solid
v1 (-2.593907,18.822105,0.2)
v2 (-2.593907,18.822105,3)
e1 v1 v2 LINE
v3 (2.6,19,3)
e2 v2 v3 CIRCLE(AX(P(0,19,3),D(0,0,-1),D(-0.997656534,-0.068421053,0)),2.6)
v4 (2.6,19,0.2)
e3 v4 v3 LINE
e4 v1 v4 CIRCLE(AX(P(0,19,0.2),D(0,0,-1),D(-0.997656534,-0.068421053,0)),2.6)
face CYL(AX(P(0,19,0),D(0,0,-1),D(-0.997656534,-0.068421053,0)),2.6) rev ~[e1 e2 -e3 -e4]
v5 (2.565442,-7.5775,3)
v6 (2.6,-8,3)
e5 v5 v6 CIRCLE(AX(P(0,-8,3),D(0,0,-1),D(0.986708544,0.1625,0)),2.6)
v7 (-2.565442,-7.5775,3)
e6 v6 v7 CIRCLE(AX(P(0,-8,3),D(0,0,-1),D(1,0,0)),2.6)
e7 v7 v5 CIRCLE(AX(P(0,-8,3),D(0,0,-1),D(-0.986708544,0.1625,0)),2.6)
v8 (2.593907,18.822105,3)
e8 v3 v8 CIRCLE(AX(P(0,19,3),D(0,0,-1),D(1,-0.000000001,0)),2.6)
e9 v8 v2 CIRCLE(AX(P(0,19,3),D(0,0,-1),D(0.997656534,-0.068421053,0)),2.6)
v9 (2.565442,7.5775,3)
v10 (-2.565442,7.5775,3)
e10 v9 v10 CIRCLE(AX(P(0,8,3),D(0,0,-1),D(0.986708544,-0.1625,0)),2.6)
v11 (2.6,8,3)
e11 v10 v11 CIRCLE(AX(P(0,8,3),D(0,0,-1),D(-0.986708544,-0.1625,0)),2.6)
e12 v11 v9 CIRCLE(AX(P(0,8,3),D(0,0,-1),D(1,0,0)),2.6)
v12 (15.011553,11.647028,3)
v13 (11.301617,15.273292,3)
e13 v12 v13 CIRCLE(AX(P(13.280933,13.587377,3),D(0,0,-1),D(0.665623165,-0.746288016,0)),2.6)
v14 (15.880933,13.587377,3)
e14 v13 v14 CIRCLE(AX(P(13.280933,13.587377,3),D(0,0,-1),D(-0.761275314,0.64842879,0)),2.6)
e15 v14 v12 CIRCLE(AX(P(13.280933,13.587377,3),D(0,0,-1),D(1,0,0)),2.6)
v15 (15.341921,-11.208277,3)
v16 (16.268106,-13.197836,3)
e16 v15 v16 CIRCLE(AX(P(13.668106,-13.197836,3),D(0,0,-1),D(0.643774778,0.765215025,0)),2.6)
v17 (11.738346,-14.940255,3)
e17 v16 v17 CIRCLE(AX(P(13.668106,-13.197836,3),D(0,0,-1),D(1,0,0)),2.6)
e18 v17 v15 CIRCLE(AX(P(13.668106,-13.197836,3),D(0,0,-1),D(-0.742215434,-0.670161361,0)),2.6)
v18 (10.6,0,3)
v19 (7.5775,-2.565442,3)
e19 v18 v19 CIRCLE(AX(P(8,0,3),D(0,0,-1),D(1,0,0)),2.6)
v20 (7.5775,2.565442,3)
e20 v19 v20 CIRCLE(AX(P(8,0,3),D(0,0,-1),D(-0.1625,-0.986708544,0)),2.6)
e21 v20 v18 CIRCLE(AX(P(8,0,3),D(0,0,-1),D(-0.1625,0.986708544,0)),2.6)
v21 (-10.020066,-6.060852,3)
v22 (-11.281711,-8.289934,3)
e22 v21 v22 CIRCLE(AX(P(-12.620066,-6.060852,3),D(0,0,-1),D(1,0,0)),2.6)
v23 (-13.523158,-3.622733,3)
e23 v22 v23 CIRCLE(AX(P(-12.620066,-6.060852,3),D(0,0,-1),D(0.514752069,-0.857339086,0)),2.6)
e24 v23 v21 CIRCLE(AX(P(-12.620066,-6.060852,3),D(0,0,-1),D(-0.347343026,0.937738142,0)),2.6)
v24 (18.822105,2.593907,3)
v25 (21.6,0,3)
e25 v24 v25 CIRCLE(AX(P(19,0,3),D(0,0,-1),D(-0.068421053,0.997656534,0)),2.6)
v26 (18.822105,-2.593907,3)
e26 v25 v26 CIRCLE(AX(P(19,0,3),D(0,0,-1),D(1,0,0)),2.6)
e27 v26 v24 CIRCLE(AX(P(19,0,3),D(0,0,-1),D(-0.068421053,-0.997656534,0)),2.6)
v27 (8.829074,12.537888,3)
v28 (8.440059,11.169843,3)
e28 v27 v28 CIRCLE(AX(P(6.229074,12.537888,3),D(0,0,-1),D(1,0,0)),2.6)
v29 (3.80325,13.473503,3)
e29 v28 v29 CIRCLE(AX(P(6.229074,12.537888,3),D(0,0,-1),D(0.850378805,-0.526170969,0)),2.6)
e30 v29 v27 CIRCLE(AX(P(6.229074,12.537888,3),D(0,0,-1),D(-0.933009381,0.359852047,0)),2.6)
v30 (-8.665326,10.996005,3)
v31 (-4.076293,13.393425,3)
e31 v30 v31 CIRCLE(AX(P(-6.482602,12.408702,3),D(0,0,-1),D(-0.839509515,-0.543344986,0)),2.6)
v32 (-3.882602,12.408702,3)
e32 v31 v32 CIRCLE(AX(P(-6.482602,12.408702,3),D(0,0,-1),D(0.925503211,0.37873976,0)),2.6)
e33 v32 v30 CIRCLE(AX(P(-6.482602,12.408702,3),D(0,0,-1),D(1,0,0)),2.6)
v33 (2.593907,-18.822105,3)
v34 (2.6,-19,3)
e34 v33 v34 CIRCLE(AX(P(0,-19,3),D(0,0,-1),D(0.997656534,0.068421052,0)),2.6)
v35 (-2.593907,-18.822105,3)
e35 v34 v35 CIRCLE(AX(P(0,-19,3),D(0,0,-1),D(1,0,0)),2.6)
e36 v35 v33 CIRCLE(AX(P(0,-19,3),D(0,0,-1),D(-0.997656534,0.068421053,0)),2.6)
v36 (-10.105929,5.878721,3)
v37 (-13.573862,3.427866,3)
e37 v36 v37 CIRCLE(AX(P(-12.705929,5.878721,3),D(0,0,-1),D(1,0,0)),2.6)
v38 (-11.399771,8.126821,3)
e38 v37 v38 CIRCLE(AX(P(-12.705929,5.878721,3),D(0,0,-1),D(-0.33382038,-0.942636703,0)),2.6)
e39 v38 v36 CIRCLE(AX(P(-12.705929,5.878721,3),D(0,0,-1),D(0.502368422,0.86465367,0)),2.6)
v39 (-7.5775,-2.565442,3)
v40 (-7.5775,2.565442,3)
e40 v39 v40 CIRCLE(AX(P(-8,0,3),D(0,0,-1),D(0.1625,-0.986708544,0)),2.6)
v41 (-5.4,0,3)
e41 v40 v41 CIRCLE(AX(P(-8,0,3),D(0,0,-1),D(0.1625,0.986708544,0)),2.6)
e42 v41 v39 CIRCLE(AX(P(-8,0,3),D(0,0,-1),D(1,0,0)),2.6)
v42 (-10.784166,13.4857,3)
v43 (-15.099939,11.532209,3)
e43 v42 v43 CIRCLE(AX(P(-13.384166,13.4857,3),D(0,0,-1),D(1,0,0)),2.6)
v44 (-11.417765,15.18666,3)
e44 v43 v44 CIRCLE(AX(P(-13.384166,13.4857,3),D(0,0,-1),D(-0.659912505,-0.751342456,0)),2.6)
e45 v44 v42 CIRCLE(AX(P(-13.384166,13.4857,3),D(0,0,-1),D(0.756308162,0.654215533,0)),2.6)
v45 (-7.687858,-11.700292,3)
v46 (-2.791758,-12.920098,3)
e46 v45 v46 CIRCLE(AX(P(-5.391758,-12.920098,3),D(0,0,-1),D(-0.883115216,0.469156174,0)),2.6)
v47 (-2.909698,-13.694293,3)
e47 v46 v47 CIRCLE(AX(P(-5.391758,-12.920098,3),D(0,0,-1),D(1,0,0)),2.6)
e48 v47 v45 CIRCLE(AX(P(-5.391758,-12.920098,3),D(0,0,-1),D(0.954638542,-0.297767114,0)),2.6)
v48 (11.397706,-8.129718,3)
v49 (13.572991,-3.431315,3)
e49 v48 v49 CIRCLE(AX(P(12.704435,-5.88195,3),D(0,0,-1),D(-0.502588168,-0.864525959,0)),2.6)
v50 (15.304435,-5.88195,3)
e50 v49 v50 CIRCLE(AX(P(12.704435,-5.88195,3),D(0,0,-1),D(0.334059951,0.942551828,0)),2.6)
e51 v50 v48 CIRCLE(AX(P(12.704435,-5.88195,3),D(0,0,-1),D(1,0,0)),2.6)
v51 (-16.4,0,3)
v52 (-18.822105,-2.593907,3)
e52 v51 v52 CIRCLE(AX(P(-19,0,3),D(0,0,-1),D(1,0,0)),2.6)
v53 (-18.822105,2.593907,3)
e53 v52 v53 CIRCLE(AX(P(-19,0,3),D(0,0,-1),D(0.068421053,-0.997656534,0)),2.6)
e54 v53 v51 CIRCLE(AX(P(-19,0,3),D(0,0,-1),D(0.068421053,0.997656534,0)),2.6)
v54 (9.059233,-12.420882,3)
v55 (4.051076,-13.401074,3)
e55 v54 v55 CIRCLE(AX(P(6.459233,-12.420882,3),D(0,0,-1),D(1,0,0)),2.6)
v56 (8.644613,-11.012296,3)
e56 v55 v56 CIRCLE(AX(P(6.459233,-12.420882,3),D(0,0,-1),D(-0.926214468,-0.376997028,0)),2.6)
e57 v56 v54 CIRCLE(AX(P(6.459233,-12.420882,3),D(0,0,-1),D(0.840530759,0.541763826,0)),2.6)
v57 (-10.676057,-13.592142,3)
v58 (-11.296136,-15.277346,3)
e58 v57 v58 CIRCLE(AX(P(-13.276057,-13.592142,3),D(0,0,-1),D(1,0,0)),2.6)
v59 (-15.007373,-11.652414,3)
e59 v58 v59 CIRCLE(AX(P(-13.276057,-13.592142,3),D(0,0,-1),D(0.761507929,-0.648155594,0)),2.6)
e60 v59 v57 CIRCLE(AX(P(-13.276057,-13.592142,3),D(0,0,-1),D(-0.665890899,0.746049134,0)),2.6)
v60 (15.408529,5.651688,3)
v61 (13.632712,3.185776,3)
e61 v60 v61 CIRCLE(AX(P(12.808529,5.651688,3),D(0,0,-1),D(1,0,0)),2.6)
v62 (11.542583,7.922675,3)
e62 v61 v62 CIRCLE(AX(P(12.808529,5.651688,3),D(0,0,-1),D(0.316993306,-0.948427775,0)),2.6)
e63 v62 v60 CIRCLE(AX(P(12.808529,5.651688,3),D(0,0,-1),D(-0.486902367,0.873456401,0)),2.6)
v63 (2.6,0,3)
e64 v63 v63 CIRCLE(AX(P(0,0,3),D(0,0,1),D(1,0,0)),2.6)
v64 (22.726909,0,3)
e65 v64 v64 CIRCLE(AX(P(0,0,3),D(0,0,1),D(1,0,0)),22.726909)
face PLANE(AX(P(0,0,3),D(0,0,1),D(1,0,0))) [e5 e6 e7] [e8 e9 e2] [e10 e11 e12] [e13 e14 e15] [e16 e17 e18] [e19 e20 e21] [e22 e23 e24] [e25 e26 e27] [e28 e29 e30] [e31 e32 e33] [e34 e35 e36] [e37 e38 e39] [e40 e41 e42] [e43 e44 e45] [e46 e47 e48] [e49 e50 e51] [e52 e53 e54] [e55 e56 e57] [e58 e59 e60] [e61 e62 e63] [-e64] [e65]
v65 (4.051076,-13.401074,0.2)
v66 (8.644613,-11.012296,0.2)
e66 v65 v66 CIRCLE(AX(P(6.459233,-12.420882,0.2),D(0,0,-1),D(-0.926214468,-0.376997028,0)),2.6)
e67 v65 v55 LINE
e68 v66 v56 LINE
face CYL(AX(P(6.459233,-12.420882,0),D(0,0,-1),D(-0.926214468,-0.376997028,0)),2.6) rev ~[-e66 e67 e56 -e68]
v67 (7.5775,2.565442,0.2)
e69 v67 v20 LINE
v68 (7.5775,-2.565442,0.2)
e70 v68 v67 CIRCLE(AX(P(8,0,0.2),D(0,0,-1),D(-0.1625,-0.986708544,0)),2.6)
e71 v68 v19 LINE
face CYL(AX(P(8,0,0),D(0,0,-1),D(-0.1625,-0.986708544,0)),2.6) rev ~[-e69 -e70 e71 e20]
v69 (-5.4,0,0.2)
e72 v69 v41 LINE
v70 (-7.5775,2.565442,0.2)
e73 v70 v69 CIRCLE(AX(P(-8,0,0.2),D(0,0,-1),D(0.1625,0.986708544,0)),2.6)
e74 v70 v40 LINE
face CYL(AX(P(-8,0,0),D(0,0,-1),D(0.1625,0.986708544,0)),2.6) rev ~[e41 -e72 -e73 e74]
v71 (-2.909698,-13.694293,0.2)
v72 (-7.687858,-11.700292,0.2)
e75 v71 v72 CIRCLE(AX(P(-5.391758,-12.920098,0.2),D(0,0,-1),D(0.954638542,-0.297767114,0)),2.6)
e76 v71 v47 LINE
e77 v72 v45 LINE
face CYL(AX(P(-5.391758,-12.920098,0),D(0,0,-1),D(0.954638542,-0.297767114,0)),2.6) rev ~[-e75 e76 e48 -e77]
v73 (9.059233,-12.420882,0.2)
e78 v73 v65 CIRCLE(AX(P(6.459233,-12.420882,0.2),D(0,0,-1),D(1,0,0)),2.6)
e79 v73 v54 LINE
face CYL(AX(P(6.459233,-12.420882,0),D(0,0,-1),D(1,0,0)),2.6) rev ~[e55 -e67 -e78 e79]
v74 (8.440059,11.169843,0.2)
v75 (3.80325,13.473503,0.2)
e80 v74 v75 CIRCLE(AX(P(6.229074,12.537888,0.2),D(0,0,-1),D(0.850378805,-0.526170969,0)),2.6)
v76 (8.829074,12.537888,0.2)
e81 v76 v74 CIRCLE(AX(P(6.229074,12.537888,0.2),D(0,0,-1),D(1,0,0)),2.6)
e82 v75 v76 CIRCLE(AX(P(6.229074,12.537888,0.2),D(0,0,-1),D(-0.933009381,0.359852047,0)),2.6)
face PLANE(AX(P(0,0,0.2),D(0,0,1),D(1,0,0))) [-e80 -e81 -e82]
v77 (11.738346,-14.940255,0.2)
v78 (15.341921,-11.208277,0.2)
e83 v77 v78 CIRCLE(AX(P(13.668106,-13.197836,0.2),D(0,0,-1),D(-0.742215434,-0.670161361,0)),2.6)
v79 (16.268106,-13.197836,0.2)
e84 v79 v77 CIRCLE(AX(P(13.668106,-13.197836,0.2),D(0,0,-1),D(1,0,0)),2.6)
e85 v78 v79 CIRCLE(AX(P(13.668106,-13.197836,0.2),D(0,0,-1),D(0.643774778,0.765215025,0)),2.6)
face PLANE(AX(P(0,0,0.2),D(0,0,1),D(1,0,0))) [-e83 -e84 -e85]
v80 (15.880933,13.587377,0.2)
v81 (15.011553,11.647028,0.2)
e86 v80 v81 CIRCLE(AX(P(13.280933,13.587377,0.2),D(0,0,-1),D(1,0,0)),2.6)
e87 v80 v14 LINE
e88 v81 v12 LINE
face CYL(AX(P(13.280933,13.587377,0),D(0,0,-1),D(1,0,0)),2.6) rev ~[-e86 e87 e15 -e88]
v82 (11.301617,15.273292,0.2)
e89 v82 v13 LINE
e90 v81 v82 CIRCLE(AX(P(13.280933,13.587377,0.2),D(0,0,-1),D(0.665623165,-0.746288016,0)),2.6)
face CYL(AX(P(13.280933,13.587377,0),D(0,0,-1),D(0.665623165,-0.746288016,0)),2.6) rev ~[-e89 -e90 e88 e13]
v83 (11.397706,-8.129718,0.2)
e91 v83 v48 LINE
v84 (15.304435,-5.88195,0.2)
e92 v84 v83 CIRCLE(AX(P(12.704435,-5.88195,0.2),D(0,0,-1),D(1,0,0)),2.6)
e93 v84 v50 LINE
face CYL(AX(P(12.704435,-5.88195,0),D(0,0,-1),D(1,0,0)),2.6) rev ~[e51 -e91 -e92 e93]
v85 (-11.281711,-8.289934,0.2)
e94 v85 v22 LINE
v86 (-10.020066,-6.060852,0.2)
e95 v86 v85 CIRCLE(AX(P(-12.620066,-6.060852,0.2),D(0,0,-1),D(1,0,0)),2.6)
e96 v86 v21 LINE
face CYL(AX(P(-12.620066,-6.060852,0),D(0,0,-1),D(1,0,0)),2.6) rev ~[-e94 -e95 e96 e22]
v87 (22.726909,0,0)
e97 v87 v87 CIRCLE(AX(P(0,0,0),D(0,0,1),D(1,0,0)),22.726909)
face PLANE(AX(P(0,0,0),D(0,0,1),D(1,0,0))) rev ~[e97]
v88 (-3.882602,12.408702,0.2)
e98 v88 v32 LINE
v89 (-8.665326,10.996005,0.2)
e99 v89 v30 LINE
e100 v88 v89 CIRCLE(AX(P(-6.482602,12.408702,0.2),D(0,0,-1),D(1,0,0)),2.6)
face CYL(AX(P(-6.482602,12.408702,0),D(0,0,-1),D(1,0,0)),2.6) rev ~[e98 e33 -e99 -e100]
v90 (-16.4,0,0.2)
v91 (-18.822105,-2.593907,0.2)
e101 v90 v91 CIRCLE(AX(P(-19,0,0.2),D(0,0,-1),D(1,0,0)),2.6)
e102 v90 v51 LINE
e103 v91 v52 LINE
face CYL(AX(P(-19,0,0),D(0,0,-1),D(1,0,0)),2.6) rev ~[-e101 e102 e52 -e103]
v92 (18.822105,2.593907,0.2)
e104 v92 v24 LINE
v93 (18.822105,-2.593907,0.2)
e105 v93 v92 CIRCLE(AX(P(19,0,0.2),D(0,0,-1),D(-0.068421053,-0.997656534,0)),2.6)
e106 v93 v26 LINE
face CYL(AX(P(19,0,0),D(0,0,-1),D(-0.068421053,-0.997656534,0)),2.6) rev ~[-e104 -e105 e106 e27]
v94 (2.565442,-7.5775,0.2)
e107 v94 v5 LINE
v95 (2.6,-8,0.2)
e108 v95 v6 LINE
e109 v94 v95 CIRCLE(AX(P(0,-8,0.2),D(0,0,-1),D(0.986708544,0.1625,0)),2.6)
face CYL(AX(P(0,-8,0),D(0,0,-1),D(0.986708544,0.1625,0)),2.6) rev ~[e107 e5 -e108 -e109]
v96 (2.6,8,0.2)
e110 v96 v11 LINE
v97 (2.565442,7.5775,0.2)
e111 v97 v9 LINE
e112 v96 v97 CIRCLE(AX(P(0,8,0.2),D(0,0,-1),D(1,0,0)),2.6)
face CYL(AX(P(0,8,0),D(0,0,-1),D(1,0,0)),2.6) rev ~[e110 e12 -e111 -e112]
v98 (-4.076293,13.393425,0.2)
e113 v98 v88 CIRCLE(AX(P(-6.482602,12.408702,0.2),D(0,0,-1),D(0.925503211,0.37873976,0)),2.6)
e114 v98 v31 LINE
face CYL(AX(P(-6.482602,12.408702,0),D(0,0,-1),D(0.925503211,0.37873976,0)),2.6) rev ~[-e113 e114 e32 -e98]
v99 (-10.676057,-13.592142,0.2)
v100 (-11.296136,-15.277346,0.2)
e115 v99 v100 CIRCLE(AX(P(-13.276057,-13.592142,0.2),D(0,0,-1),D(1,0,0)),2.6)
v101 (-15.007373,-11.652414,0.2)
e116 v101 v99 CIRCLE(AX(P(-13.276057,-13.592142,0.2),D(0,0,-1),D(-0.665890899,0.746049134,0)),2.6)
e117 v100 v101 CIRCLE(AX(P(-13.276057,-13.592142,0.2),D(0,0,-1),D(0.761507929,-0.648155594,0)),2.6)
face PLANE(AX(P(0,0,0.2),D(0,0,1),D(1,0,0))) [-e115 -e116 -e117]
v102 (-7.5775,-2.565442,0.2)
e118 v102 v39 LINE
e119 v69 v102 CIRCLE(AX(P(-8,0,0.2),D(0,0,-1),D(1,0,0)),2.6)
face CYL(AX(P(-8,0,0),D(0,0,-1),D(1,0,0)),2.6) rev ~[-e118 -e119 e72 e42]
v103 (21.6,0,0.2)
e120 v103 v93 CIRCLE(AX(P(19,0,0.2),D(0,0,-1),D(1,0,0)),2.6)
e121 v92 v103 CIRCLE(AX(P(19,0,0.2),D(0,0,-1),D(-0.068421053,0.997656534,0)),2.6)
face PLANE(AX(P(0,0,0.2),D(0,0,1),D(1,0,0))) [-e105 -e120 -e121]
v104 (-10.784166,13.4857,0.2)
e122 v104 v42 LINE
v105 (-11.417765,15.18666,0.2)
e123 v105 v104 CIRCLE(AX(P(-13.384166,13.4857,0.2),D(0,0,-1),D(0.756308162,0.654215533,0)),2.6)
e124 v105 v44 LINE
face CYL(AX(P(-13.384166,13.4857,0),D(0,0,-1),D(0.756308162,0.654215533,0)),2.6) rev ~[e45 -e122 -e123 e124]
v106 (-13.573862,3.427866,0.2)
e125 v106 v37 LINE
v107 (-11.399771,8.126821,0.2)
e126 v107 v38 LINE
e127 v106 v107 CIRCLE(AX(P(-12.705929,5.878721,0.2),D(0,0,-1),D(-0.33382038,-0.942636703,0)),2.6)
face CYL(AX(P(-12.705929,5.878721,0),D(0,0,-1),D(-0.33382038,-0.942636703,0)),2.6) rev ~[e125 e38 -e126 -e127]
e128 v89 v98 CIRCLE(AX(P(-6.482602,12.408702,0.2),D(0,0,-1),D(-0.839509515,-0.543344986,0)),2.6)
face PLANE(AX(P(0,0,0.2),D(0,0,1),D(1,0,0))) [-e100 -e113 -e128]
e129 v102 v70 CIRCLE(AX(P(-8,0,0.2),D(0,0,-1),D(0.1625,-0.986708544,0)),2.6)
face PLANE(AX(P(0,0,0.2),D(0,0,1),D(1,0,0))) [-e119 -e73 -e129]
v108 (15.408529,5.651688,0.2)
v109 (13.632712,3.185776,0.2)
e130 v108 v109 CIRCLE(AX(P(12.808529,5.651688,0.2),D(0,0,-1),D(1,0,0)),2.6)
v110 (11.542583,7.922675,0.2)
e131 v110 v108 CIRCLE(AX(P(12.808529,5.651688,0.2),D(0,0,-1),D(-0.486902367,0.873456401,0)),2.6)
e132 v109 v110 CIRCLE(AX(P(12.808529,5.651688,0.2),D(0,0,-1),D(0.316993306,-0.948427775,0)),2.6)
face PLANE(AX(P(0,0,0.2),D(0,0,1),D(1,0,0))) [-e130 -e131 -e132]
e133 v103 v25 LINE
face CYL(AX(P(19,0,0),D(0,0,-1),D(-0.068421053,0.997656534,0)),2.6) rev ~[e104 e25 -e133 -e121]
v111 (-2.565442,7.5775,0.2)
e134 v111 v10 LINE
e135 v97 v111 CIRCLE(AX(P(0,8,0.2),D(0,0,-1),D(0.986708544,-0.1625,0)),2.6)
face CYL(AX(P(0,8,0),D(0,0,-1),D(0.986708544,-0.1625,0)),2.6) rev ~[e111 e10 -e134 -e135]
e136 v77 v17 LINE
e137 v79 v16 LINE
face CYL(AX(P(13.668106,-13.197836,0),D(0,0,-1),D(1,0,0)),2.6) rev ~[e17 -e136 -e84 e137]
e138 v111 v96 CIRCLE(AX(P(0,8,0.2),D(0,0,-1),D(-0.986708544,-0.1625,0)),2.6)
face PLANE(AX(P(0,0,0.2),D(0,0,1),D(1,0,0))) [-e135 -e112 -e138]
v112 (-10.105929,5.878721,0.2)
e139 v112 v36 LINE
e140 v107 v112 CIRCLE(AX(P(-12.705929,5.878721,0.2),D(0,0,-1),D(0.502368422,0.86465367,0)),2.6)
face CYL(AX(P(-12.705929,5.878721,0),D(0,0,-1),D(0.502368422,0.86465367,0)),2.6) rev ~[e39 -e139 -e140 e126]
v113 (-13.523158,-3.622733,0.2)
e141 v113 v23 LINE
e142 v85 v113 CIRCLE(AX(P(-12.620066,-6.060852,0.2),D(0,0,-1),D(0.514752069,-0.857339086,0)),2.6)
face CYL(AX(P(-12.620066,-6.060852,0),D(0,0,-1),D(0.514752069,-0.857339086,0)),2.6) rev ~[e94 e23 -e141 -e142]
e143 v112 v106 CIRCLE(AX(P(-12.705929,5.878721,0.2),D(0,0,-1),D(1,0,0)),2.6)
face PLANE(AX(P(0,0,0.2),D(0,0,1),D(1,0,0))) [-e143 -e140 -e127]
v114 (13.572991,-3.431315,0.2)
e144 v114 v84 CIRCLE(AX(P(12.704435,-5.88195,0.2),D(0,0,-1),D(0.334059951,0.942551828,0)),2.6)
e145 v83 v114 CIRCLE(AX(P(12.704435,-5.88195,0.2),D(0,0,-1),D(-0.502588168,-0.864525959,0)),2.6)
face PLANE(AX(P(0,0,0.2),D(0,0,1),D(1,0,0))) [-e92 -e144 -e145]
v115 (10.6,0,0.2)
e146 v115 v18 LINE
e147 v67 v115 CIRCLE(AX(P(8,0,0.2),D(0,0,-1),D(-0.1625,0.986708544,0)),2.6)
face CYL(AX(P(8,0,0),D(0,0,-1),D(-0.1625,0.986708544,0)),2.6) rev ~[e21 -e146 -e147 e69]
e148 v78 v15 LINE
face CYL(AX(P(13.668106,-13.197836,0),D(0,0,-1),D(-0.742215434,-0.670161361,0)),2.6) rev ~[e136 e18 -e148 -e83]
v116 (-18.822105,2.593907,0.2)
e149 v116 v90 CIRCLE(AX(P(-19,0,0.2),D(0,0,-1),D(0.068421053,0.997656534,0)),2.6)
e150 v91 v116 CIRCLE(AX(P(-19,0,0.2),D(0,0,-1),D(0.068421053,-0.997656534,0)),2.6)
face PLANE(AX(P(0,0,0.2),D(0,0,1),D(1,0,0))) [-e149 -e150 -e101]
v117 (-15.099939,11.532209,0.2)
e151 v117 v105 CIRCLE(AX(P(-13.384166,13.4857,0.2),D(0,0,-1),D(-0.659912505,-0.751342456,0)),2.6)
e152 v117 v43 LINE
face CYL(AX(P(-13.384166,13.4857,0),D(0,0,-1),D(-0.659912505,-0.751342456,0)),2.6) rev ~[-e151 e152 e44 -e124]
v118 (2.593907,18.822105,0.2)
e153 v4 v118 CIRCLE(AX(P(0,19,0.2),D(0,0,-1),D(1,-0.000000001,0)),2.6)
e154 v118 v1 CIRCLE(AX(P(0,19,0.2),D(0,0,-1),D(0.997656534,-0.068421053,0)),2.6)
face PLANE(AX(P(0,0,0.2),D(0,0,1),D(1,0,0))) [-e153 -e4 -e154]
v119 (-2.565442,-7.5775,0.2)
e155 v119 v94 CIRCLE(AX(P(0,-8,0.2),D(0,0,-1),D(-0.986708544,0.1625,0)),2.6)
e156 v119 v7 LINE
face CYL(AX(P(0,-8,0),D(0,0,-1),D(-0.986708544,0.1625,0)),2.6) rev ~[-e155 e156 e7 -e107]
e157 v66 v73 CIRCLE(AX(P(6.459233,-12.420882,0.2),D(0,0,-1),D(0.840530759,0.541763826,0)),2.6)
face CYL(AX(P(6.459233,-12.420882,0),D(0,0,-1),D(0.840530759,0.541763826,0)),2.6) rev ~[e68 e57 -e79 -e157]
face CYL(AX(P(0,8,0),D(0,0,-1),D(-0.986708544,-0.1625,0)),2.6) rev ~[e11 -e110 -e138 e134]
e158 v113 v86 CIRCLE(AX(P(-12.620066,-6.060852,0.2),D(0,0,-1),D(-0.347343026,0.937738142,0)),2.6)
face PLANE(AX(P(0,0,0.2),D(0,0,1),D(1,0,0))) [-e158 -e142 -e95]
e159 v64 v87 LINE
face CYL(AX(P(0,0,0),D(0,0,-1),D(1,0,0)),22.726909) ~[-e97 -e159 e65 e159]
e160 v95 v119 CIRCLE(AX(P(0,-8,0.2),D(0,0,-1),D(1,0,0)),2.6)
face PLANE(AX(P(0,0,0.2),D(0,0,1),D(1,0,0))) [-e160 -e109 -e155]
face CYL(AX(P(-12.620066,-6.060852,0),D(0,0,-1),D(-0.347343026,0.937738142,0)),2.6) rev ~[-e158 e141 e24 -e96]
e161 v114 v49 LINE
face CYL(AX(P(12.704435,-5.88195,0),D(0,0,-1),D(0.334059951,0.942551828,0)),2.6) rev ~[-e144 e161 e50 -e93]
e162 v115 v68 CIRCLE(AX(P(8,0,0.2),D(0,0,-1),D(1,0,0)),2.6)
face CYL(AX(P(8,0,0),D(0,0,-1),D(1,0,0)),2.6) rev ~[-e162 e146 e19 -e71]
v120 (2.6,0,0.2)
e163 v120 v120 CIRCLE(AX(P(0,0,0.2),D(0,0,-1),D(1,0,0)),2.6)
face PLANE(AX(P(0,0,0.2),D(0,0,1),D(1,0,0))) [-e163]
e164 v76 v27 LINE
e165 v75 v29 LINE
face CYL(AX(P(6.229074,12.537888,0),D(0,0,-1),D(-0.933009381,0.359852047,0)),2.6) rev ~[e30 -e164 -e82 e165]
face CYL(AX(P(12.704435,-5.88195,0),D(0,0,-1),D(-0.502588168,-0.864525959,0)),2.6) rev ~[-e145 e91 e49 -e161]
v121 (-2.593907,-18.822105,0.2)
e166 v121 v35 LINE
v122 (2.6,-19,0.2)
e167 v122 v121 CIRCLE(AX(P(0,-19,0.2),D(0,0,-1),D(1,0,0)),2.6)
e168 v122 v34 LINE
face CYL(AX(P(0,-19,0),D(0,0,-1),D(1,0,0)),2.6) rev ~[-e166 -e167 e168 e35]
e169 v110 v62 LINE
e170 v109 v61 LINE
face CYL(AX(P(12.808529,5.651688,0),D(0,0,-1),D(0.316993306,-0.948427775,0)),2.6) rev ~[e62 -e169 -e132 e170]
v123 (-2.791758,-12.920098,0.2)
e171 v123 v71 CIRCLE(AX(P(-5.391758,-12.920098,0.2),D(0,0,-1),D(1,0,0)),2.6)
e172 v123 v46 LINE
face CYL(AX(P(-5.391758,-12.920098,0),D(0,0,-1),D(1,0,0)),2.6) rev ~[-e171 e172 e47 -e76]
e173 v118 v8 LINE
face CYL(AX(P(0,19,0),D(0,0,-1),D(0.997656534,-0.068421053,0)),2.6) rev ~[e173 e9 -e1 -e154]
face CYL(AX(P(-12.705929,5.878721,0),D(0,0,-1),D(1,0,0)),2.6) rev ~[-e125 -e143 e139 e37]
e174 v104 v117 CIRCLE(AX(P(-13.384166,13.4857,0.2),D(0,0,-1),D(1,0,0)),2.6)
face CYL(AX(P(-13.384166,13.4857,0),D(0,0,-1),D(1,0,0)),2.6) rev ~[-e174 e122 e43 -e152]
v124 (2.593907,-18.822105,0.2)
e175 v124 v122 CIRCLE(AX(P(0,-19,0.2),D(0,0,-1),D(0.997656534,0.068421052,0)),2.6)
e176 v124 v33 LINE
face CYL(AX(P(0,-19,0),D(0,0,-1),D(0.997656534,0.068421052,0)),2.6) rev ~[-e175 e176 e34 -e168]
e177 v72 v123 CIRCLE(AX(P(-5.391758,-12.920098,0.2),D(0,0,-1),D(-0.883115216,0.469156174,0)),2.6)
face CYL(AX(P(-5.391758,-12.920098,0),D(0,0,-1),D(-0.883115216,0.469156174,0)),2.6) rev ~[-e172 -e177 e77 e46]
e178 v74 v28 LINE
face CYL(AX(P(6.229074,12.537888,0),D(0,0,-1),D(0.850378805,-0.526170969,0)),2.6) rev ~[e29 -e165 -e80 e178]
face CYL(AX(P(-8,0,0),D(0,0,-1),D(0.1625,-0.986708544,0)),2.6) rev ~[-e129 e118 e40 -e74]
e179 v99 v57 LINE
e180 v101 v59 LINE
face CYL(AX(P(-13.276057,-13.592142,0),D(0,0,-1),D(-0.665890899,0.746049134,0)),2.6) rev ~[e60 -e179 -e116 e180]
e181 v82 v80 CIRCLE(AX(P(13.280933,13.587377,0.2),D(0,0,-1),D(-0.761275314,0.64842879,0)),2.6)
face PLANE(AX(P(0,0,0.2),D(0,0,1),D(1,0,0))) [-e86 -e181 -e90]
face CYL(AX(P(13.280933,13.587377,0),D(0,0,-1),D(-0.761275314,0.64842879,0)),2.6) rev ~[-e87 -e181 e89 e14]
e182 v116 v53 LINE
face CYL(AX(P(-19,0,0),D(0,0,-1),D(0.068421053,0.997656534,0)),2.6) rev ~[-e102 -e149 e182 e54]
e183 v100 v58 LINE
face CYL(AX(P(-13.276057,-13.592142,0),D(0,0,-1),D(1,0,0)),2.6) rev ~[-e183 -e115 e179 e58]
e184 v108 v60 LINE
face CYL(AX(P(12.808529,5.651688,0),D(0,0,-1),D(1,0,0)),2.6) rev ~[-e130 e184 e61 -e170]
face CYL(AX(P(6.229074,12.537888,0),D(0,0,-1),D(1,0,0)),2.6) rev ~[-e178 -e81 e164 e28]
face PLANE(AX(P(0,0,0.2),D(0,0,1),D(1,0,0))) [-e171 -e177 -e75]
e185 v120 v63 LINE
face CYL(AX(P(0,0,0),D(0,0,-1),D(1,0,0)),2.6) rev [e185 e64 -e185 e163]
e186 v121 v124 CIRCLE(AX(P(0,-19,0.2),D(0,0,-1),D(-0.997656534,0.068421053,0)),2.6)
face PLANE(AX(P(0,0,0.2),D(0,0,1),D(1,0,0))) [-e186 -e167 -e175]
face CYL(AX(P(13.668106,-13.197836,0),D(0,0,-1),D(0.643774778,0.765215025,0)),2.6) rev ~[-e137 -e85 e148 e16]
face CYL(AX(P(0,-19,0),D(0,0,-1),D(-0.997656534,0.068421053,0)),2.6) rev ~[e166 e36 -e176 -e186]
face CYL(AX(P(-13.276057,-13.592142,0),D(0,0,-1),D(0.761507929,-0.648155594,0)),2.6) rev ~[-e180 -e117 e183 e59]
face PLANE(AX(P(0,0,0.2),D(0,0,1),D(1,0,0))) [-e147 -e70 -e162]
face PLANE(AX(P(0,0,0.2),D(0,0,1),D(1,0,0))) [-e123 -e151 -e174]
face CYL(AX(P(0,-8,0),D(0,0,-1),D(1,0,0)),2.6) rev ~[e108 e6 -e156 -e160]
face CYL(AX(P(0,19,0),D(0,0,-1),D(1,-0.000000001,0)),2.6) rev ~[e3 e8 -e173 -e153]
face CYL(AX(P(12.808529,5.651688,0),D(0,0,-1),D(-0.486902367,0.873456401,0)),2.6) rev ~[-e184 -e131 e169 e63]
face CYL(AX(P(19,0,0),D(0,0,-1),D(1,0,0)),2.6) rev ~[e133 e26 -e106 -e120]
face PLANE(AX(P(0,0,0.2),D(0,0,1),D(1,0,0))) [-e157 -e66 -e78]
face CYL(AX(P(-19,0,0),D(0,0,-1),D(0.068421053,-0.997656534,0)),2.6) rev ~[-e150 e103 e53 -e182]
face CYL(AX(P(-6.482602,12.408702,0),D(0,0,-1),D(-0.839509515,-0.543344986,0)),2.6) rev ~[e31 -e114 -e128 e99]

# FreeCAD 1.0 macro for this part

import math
import FreeCAD as App
import Part
import Sketcher
Q = App.Units.Quantity

doc = App.newDocument("Part")
body = doc.addObject("PartDesign::Body", "Body")

# Sketch on XY plane
sketch1 = body.newObject("Sketcher::SketchObject", "Sketch")
sketch1.AttachmentSupport = (doc.getObject("XY_Plane"), [""])
sketch1.MapMode = "FlatFace"
sketch1.addGeometry(Part.Circle(App.Vector(0, 0, 0), App.Vector(0, 0, 1), 23), False)
sketch1.addConstraint(Sketcher.Constraint("Coincident", 0, 3, -1, 1))
sketch1.addConstraint(Sketcher.Constraint("Diameter", 0, Q("45.453818 mm")))
pad1 = body.newObject("PartDesign::Pad", "Pad")
pad1.Profile = sketch1
pad1.Length = 0.2

# Sketch on XY plane
sketch2 = body.newObject("Sketcher::SketchObject", "Sketch001")
sketch2.AttachmentSupport = (doc.getObject("XY_Plane"), [""])
sketch2.MapMode = "FlatFace"
sketch2.addGeometry(Part.Circle(App.Vector(0, 0, 0), App.Vector(0, 0, 1), 22.73), False)
sketch2.addGeometry(Part.ArcOfCircle(Part.Circle(App.Vector(-13.28, -13.59, 0), App.Vector(0, 0, 1), 2.6), math.radians(132), math.radians(320)), False)
sketch2.addGeometry(Part.ArcOfCircle(Part.Circle(App.Vector(-13.28, -13.59, 0), App.Vector(0, 0, 1), 2.6), math.radians(0), math.radians(132)), False)
sketch2.addGeometry(Part.ArcOfCircle(Part.Circle(App.Vector(-13.28, -13.59, 0), App.Vector(0, 0, 1), 2.6), math.radians(-40), math.radians(0)), False)
sketch2.addGeometry(Part.ArcOfCircle(Part.Circle(App.Vector(-5.39, -12.92, 0), App.Vector(0, 0, 1), 2.6), math.radians(152), math.radians(343)), False)
sketch2.addGeometry(Part.ArcOfCircle(Part.Circle(App.Vector(-5.39, -12.92, 0), App.Vector(0, 0, 1), 2.6), math.radians(0), math.radians(152)), False)
sketch2.addGeometry(Part.ArcOfCircle(Part.Circle(App.Vector(-5.39, -12.92, 0), App.Vector(0, 0, 1), 2.6), math.radians(-17.32), math.radians(0)), False)
sketch2.addGeometry(Part.ArcOfCircle(Part.Circle(App.Vector(-12.62, -6.06, 0), App.Vector(0, 0, 1), 2.6), math.radians(110), math.radians(301)), False)
sketch2.addGeometry(Part.ArcOfCircle(Part.Circle(App.Vector(-12.62, -6.06, 0), App.Vector(0, 0, 1), 2.6), math.radians(0), math.radians(110)), False)
sketch2.addGeometry(Part.ArcOfCircle(Part.Circle(App.Vector(-12.62, -6.06, 0), App.Vector(0, 0, 1), 2.6), math.radians(-59), math.radians(0)), False)
sketch2.addGeometry(Part.ArcOfCircle(Part.Circle(App.Vector(0, -19, 0), App.Vector(0, 0, 1), 2.6), math.radians(176), math.radians(360)), False)
sketch2.addGeometry(Part.ArcOfCircle(Part.Circle(App.Vector(0, -19, 0), App.Vector(0, 0, 1), 2.6), math.radians(4), math.radians(176)), False)
sketch2.addGeometry(Part.ArcOfCircle(Part.Circle(App.Vector(0, -19, 0), App.Vector(0, 0, 1), 2.6), math.radians(0), math.radians(3.92)), False)
sketch2.addGeometry(Part.ArcOfCircle(Part.Circle(App.Vector(6.46, -12.42, 0), App.Vector(0, 0, 1), 2.6), math.radians(-158), math.radians(0)), False)
sketch2.addGeometry(Part.ArcOfCircle(Part.Circle(App.Vector(6.46, -12.42, 0), App.Vector(0, 0, 1), 2.6), math.radians(33), math.radians(202)), False)
sketch2.addGeometry(Part.ArcOfCircle(Part.Circle(App.Vector(6.46, -12.42, 0), App.Vector(0, 0, 1), 2.6), math.radians(0), math.radians(33)), False)
sketch2.addGeometry(Part.ArcOfCircle(Part.Circle(App.Vector(13.67, -13.2, 0), App.Vector(0, 0, 1), 2.6), math.radians(-138), math.radians(0)), False)
sketch2.addGeometry(Part.ArcOfCircle(Part.Circle(App.Vector(13.67, -13.2, 0), App.Vector(0, 0, 1), 2.6), math.radians(50), math.radians(222)), False)
sketch2.addGeometry(Part.ArcOfCircle(Part.Circle(App.Vector(13.67, -13.2, 0), App.Vector(0, 0, 1), 2.6), math.radians(0), math.radians(50)), False)
sketch2.addGeometry(Part.ArcOfCircle(Part.Circle(App.Vector(0, -8, 0), App.Vector(0, 0, 1), 2.6), math.radians(171), math.radians(360)), False)
sketch2.addGeometry(Part.ArcOfCircle(Part.Circle(App.Vector(0, -8, 0), App.Vector(0, 0, 1), 2.6), math.radians(9), math.radians(171)), False)
sketch2.addGeometry(Part.ArcOfCircle(Part.Circle(App.Vector(0, -8, 0), App.Vector(0, 0, 1), 2.6), math.radians(0), math.radians(9.35)), False)
sketch2.addGeometry(Part.ArcOfCircle(Part.Circle(App.Vector(12.7, -5.88, 0), App.Vector(0, 0, 1), 2.6), math.radians(-120), math.radians(0)), False)
sketch2.addGeometry(Part.ArcOfCircle(Part.Circle(App.Vector(12.7, -5.88, 0), App.Vector(0, 0, 1), 2.6), math.radians(70), math.radians(240)), False)
sketch2.addGeometry(Part.ArcOfCircle(Part.Circle(App.Vector(12.7, -5.88, 0), App.Vector(0, 0, 1), 2.6), math.radians(0), math.radians(70)), False)
sketch2.addGeometry(Part.ArcOfCircle(Part.Circle(App.Vector(-19, 0, 0), App.Vector(0, 0, 1), 2.6), math.radians(86), math.radians(274)), False)
sketch2.addGeometry(Part.ArcOfCircle(Part.Circle(App.Vector(-19, 0, 0), App.Vector(0, 0, 1), 2.6), math.radians(0), math.radians(86)), False)
sketch2.addGeometry(Part.ArcOfCircle(Part.Circle(App.Vector(-19, 0, 0), App.Vector(0, 0, 1), 2.6), math.radians(-86), math.radians(0)), False)
sketch2.addGeometry(Part.ArcOfCircle(Part.Circle(App.Vector(-12.71, 5.88, 0), App.Vector(0, 0, 1), 2.6), math.radians(60), math.radians(250)), False)
sketch2.addGeometry(Part.ArcOfCircle(Part.Circle(App.Vector(-12.71, 5.88, 0), App.Vector(0, 0, 1), 2.6), math.radians(0), math.radians(60)), False)
sketch2.addGeometry(Part.ArcOfCircle(Part.Circle(App.Vector(-12.71, 5.88, 0), App.Vector(0, 0, 1), 2.6), math.radians(-110), math.radians(0)), False)
sketch2.addGeometry(Part.ArcOfCircle(Part.Circle(App.Vector(-8, 0, 0), App.Vector(0, 0, 1), 2.6), math.radians(81), math.radians(279)), False)
sketch2.addGeometry(Part.ArcOfCircle(Part.Circle(App.Vector(-8, 0, 0), App.Vector(0, 0, 1), 2.6), math.radians(0), math.radians(81)), False)
sketch2.addGeometry(Part.ArcOfCircle(Part.Circle(App.Vector(-8, 0, 0), App.Vector(0, 0, 1), 2.6), math.radians(-81), math.radians(0)), False)
sketch2.addGeometry(Part.ArcOfCircle(Part.Circle(App.Vector(-13.38, 13.49, 0), App.Vector(0, 0, 1), 2.6), math.radians(41), math.radians(229)), False)
sketch2.addGeometry(Part.ArcOfCircle(Part.Circle(App.Vector(-13.38, 13.49, 0), App.Vector(0, 0, 1), 2.6), math.radians(0), math.radians(41)), False)
sketch2.addGeometry(Part.ArcOfCircle(Part.Circle(App.Vector(-13.38, 13.49, 0), App.Vector(0, 0, 1), 2.6), math.radians(-131), math.radians(0)), False)
sketch2.addGeometry(Part.ArcOfCircle(Part.Circle(App.Vector(-6.48, 12.41, 0), App.Vector(0, 0, 1), 2.6), math.radians(22), math.radians(213)), False)
sketch2.addGeometry(Part.ArcOfCircle(Part.Circle(App.Vector(-6.48, 12.41, 0), App.Vector(0, 0, 1), 2.6), math.radians(0), math.radians(22)), False)
sketch2.addGeometry(Part.ArcOfCircle(Part.Circle(App.Vector(-6.48, 12.41, 0), App.Vector(0, 0, 1), 2.6), math.radians(-147), math.radians(0)), False)
sketch2.addGeometry(Part.Circle(App.Vector(0, 0, 0), App.Vector(0, 0, 1), 2.6), False)
sketch2.addGeometry(Part.ArcOfCircle(Part.Circle(App.Vector(8, 0, 0), App.Vector(0, 0, 1), 2.6), math.radians(-99), math.radians(0)), False)
sketch2.addGeometry(Part.ArcOfCircle(Part.Circle(App.Vector(8, 0, 0), App.Vector(0, 0, 1), 2.6), math.radians(99), math.radians(261)), False)
sketch2.addGeometry(Part.ArcOfCircle(Part.Circle(App.Vector(8, 0, 0), App.Vector(0, 0, 1), 2.6), math.radians(0), math.radians(99)), False)
sketch2.addGeometry(Part.ArcOfCircle(Part.Circle(App.Vector(0, 8, 0), App.Vector(0, 0, 1), 2.6), math.radians(-9.35), math.radians(0)), False)
sketch2.addGeometry(Part.ArcOfCircle(Part.Circle(App.Vector(0, 8, 0), App.Vector(0, 0, 1), 2.6), math.radians(-171), math.radians(-9)), False)
sketch2.addGeometry(Part.ArcOfCircle(Part.Circle(App.Vector(0, 8, 0), App.Vector(0, 0, 1), 2.6), math.radians(0), math.radians(189)), False)
sketch2.addGeometry(Part.ArcOfCircle(Part.Circle(App.Vector(19, 0, 0), App.Vector(0, 0, 1), 2.6), math.radians(-94), math.radians(0)), False)
sketch2.addGeometry(Part.ArcOfCircle(Part.Circle(App.Vector(19, 0, 0), App.Vector(0, 0, 1), 2.6), math.radians(94), math.radians(266)), False)
sketch2.addGeometry(Part.ArcOfCircle(Part.Circle(App.Vector(19, 0, 0), App.Vector(0, 0, 1), 2.6), math.radians(0), math.radians(94)), False)
sketch2.addGeometry(Part.ArcOfCircle(Part.Circle(App.Vector(12.81, 5.65, 0), App.Vector(0, 0, 1), 2.6), math.radians(-72), math.radians(0)), False)
sketch2.addGeometry(Part.ArcOfCircle(Part.Circle(App.Vector(12.81, 5.65, 0), App.Vector(0, 0, 1), 2.6), math.radians(119), math.radians(288)), False)
sketch2.addGeometry(Part.ArcOfCircle(Part.Circle(App.Vector(12.81, 5.65, 0), App.Vector(0, 0, 1), 2.6), math.radians(0), math.radians(119)), False)
sketch2.addGeometry(Part.ArcOfCircle(Part.Circle(App.Vector(6.23, 12.54, 0), App.Vector(0, 0, 1), 2.6), math.radians(-32), math.radians(0)), False)
sketch2.addGeometry(Part.ArcOfCircle(Part.Circle(App.Vector(6.23, 12.54, 0), App.Vector(0, 0, 1), 2.6), math.radians(159), math.radians(328)), False)
sketch2.addGeometry(Part.ArcOfCircle(Part.Circle(App.Vector(6.23, 12.54, 0), App.Vector(0, 0, 1), 2.6), math.radians(0), math.radians(159)), False)
sketch2.addGeometry(Part.ArcOfCircle(Part.Circle(App.Vector(0, 19, 0), App.Vector(0, 0, 1), 2.6), math.radians(-3.92), math.radians(0)), False)
sketch2.addGeometry(Part.ArcOfCircle(Part.Circle(App.Vector(0, 19, 0), App.Vector(0, 0, 1), 2.6), math.radians(-176), math.radians(-4)), False)
sketch2.addGeometry(Part.ArcOfCircle(Part.Circle(App.Vector(0, 19, 0), App.Vector(0, 0, 1), 2.6), math.radians(0), math.radians(184)), False)
sketch2.addGeometry(Part.ArcOfCircle(Part.Circle(App.Vector(13.28, 13.59, 0), App.Vector(0, 0, 1), 2.6), math.radians(-48), math.radians(0)), False)
sketch2.addGeometry(Part.ArcOfCircle(Part.Circle(App.Vector(13.28, 13.59, 0), App.Vector(0, 0, 1), 2.6), math.radians(140), math.radians(312)), False)
sketch2.addGeometry(Part.ArcOfCircle(Part.Circle(App.Vector(13.28, 13.59, 0), App.Vector(0, 0, 1), 2.6), math.radians(0), math.radians(140)), False)
sketch2.addConstraint(Sketcher.Constraint("Tangent", 1, 1, 2, 2))
sketch2.addConstraint(Sketcher.Constraint("Tangent", 2, 1, 3, 2))
sketch2.addConstraint(Sketcher.Constraint("Tangent", 3, 1, 1, 2))
sketch2.addConstraint(Sketcher.Constraint("Tangent", 4, 1, 5, 2))
sketch2.addConstraint(Sketcher.Constraint("Tangent", 5, 1, 6, 2))
sketch2.addConstraint(Sketcher.Constraint("Tangent", 6, 1, 4, 2))
sketch2.addConstraint(Sketcher.Constraint("Tangent", 7, 1, 8, 2))
sketch2.addConstraint(Sketcher.Constraint("Tangent", 8, 1, 9, 2))
sketch2.addConstraint(Sketcher.Constraint("Tangent", 9, 1, 7, 2))
sketch2.addConstraint(Sketcher.Constraint("Tangent", 10, 1, 11, 2))
sketch2.addConstraint(Sketcher.Constraint("Tangent", 11, 1, 12, 2))
sketch2.addConstraint(Sketcher.Constraint("Tangent", 12, 1, 10, 2))
sketch2.addConstraint(Sketcher.Constraint("Tangent", 13, 1, 14, 2))
sketch2.addConstraint(Sketcher.Constraint("Tangent", 14, 1, 15, 2))
sketch2.addConstraint(Sketcher.Constraint("Tangent", 15, 1, 13, 2))
sketch2.addConstraint(Sketcher.Constraint("Tangent", 16, 1, 17, 2))
sketch2.addConstraint(Sketcher.Constraint("Tangent", 17, 1, 18, 2))
sketch2.addConstraint(Sketcher.Constraint("Tangent", 18, 1, 16, 2))
sketch2.addConstraint(Sketcher.Constraint("Tangent", 19, 1, 20, 2))
sketch2.addConstraint(Sketcher.Constraint("Tangent", 20, 1, 21, 2))
sketch2.addConstraint(Sketcher.Constraint("Tangent", 21, 1, 19, 2))
sketch2.addConstraint(Sketcher.Constraint("Tangent", 22, 1, 23, 2))
sketch2.addConstraint(Sketcher.Constraint("Tangent", 23, 1, 24, 2))
sketch2.addConstraint(Sketcher.Constraint("Tangent", 24, 1, 22, 2))
sketch2.addConstraint(Sketcher.Constraint("Tangent", 25, 1, 26, 2))
sketch2.addConstraint(Sketcher.Constraint("Tangent", 26, 1, 27, 2))
sketch2.addConstraint(Sketcher.Constraint("Tangent", 27, 1, 25, 2))
sketch2.addConstraint(Sketcher.Constraint("Tangent", 28, 1, 29, 2))
sketch2.addConstraint(Sketcher.Constraint("Tangent", 29, 1, 30, 2))
sketch2.addConstraint(Sketcher.Constraint("Tangent", 30, 1, 28, 2))
sketch2.addConstraint(Sketcher.Constraint("Tangent", 31, 1, 32, 2))
sketch2.addConstraint(Sketcher.Constraint("Tangent", 32, 1, 33, 2))
sketch2.addConstraint(Sketcher.Constraint("Tangent", 33, 1, 31, 2))
sketch2.addConstraint(Sketcher.Constraint("Tangent", 34, 1, 35, 2))
sketch2.addConstraint(Sketcher.Constraint("Tangent", 35, 1, 36, 2))
sketch2.addConstraint(Sketcher.Constraint("Tangent", 36, 1, 34, 2))
sketch2.addConstraint(Sketcher.Constraint("Tangent", 37, 1, 38, 2))
sketch2.addConstraint(Sketcher.Constraint("Tangent", 38, 1, 39, 2))
sketch2.addConstraint(Sketcher.Constraint("Tangent", 39, 1, 37, 2))
sketch2.addConstraint(Sketcher.Constraint("Tangent", 41, 1, 42, 2))
sketch2.addConstraint(Sketcher.Constraint("Tangent", 42, 1, 43, 2))
sketch2.addConstraint(Sketcher.Constraint("Tangent", 43, 1, 41, 2))
sketch2.addConstraint(Sketcher.Constraint("Tangent", 44, 1, 45, 2))
sketch2.addConstraint(Sketcher.Constraint("Tangent", 45, 1, 46, 2))
sketch2.addConstraint(Sketcher.Constraint("Tangent", 46, 1, 44, 2))
sketch2.addConstraint(Sketcher.Constraint("Tangent", 47, 1, 48, 2))
sketch2.addConstraint(Sketcher.Constraint("Tangent", 48, 1, 49, 2))
sketch2.addConstraint(Sketcher.Constraint("Tangent", 49, 1, 47, 2))
sketch2.addConstraint(Sketcher.Constraint("Tangent", 50, 1, 51, 2))
sketch2.addConstraint(Sketcher.Constraint("Tangent", 51, 1, 52, 2))
sketch2.addConstraint(Sketcher.Constraint("Tangent", 52, 1, 50, 2))
sketch2.addConstraint(Sketcher.Constraint("Tangent", 53, 1, 54, 2))
sketch2.addConstraint(Sketcher.Constraint("Tangent", 54, 1, 55, 2))
sketch2.addConstraint(Sketcher.Constraint("Tangent", 55, 1, 53, 2))
sketch2.addConstraint(Sketcher.Constraint("Tangent", 56, 1, 57, 2))
sketch2.addConstraint(Sketcher.Constraint("Tangent", 57, 1, 58, 2))
sketch2.addConstraint(Sketcher.Constraint("Tangent", 58, 1, 56, 2))
sketch2.addConstraint(Sketcher.Constraint("Tangent", 59, 1, 60, 2))
sketch2.addConstraint(Sketcher.Constraint("Tangent", 60, 1, 61, 2))
sketch2.addConstraint(Sketcher.Constraint("Tangent", 61, 1, 59, 2))
sketch2.addConstraint(Sketcher.Constraint("Coincident", 0, 3, -1, 1))
sketch2.addConstraint(Sketcher.Constraint("Coincident", 40, 3, -1, 1))
sketch2.addConstraint(Sketcher.Constraint("Equal", 3, 4))
sketch2.addConstraint(Sketcher.Constraint("Equal", 6, 7))
sketch2.addConstraint(Sketcher.Constraint("Equal", 9, 10))
sketch2.addConstraint(Sketcher.Constraint("Equal", 12, 13))
sketch2.addConstraint(Sketcher.Constraint("Equal", 15, 16))
sketch2.addConstraint(Sketcher.Constraint("Equal", 18, 19))
sketch2.addConstraint(Sketcher.Constraint("Equal", 21, 22))
sketch2.addConstraint(Sketcher.Constraint("Equal", 24, 25))
sketch2.addConstraint(Sketcher.Constraint("Equal", 27, 28))
sketch2.addConstraint(Sketcher.Constraint("Equal", 30, 31))
sketch2.addConstraint(Sketcher.Constraint("Equal", 33, 34))
sketch2.addConstraint(Sketcher.Constraint("Equal", 36, 37))
sketch2.addConstraint(Sketcher.Constraint("Equal", 39, 40))
sketch2.addConstraint(Sketcher.Constraint("Equal", 40, 41))
sketch2.addConstraint(Sketcher.Constraint("Equal", 43, 44))
sketch2.addConstraint(Sketcher.Constraint("Equal", 46, 47))
sketch2.addConstraint(Sketcher.Constraint("Equal", 49, 50))
sketch2.addConstraint(Sketcher.Constraint("Equal", 52, 53))
sketch2.addConstraint(Sketcher.Constraint("Equal", 55, 56))
sketch2.addConstraint(Sketcher.Constraint("Equal", 58, 59))
sketch2.addConstraint(Sketcher.Constraint("Symmetric", 31, 3, 41, 3, -1, 1))
sketch2.addConstraint(Sketcher.Constraint("Symmetric", 19, 3, 44, 3, -1, 1))
sketch2.addConstraint(Sketcher.Constraint("Symmetric", 25, 3, 47, 3, -1, 1))
sketch2.addConstraint(Sketcher.Constraint("Symmetric", 10, 3, 56, 3, -1, 1))
sketch2.addConstraint(Sketcher.Constraint("Symmetric", 10, 1, 11, 1, -2))
sketch2.addConstraint(Sketcher.Constraint("Symmetric", 19, 1, 20, 1, -2))
sketch2.addConstraint(Sketcher.Constraint("Symmetric", 33, 1, 41, 1, -2))
sketch2.addConstraint(Sketcher.Constraint("Symmetric", 27, 1, 47, 1, -2))
sketch2.addConstraint(Sketcher.Constraint("PointOnObject", 26, 1, -1))
sketch2.addConstraint(Sketcher.Constraint("PointOnObject", 32, 1, -1))
sketch2.addConstraint(Sketcher.Constraint("PointOnObject", 43, 1, -1))
sketch2.addConstraint(Sketcher.Constraint("PointOnObject", 49, 1, -1))
sketch2.addConstraint(Sketcher.Constraint("Horizontal", 3, 3, 2, 1))
sketch2.addConstraint(Sketcher.Constraint("Horizontal", 6, 3, 5, 1))
sketch2.addConstraint(Sketcher.Constraint("Horizontal", 9, 3, 8, 1))
sketch2.addConstraint(Sketcher.Constraint("Horizontal", 11, 3, 12, 1))
sketch2.addConstraint(Sketcher.Constraint("Horizontal", 14, 3, 15, 1))
sketch2.addConstraint(Sketcher.Constraint("Horizontal", 17, 3, 18, 1))
sketch2.addConstraint(Sketcher.Constraint("Horizontal", 20, 3, 21, 1))
sketch2.addConstraint(Sketcher.Constraint("Horizontal", 23, 3, 24, 1))
sketch2.addConstraint(Sketcher.Constraint("Horizontal", 30, 3, 29, 1))
sketch2.addConstraint(Sketcher.Constraint("Horizontal", 36, 3, 35, 1))
sketch2.addConstraint(Sketcher.Constraint("Horizontal", 39, 3, 38, 1))
sketch2.addConstraint(Sketcher.Constraint("Horizontal", 31, 1, 42, 1))
sketch2.addConstraint(Sketcher.Constraint("Horizontal", 44, 1, 45, 1))
sketch2.addConstraint(Sketcher.Constraint("Horizontal", 45, 3, 46, 1))
sketch2.addConstraint(Sketcher.Constraint("Horizontal", 25, 1, 48, 1))
sketch2.addConstraint(Sketcher.Constraint("Horizontal", 51, 3, 52, 1))
sketch2.addConstraint(Sketcher.Constraint("Horizontal", 54, 3, 55, 1))
sketch2.addConstraint(Sketcher.Constraint("Horizontal", 56, 1, 57, 1))
sketch2.addConstraint(Sketcher.Constraint("Horizontal", 57, 3, 58, 1))
sketch2.addConstraint(Sketcher.Constraint("Horizontal", 60, 3, 61, 1))
sketch2.addConstraint(Sketcher.Constraint("Vertical", 25, 1, 27, 1))
sketch2.addConstraint(Sketcher.Constraint("Vertical", 31, 1, 33, 1))
sketch2.addConstraint(Sketcher.Constraint("Vertical", 20, 1, 44, 1))
sketch2.addConstraint(Sketcher.Constraint("Vertical", 11, 1, 56, 1))
sketch2.addConstraint(Sketcher.Constraint("Diameter", 40, Q("5.2 mm")))
sketch2.addConstraint(Sketcher.Constraint("DistanceY", 10, 3, -1, 1, Q("19 mm")))
sketch2.addConstraint(Sketcher.Constraint("DistanceY", 19, 3, -1, 1, Q("8 mm")))
sketch2.addConstraint(Sketcher.Constraint("DistanceX", 25, 3, -1, 1, Q("19 mm")))
sketch2.addConstraint(Sketcher.Constraint("DistanceX", 31, 3, -1, 1, Q("8 mm")))
sketch2.addConstraint(Sketcher.Constraint("Diameter", 0, Q("45.453818 mm")))
sketch2.addConstraint(Sketcher.Constraint("DistanceY", 4, 3, -1, 1, Q("12.920098 mm")))
sketch2.addConstraint(Sketcher.Constraint("DistanceY", -1, 1, 34, 3, Q("13.4857 mm")))
sketch2.addConstraint(Sketcher.Constraint("DistanceX", 37, 3, -1, 1, Q("6.482602 mm")))
sketch2.addConstraint(Sketcher.Constraint("DistanceY", -1, 1, 37, 3, Q("12.408702 mm")))
sketch2.addConstraint(Sketcher.Constraint("DistanceX", 6, 1, -1, 1, Q("2.909698 mm")))
sketch2.addConstraint(Sketcher.Constraint("DistanceY", 19, 1, -1, 1, Q("7.5775 mm")))
sketch2.addConstraint(Sketcher.Constraint("DistanceX", 31, 1, -1, 1, Q("7.5775 mm")))
sketch2.addConstraint(Sketcher.Constraint("DistanceY", 1, 3, -1, 1, Q("13.592142 mm")))
sketch2.addConstraint(Sketcher.Constraint("DistanceX", 4, 3, -1, 1, Q("5.391758 mm")))
sketch2.addConstraint(Sketcher.Constraint("DistanceY", 7, 3, -1, 1, Q("6.060852 mm")))
sketch2.addConstraint(Sketcher.Constraint("DistanceY", 13, 3, -1, 1, Q("12.420882 mm")))
sketch2.addConstraint(Sketcher.Constraint("DistanceY", 22, 3, -1, 1, Q("5.88195 mm")))
sketch2.addConstraint(Sketcher.Constraint("DistanceX", 28, 3, -1, 1, Q("12.705929 mm")))
sketch2.addConstraint(Sketcher.Constraint("DistanceY", -1, 1, 28, 3, Q("5.878721 mm")))
sketch2.addConstraint(Sketcher.Constraint("DistanceX", -1, 1, 50, 3, Q("12.808529 mm")))
sketch2.addConstraint(Sketcher.Constraint("DistanceY", -1, 1, 50, 3, Q("5.651688 mm")))
sketch2.addConstraint(Sketcher.Constraint("DistanceX", 7, 1, -1, 1, Q("13.523158 mm")))
sketch2.addConstraint(Sketcher.Constraint("DistanceX", 9, 1, -1, 1, Q("11.281711 mm")))
sketch2.addConstraint(Sketcher.Constraint("DistanceX", -1, 1, 17, 1, Q("15.341921 mm")))
sketch2.addConstraint(Sketcher.Constraint("DistanceX", -1, 1, 23, 1, Q("13.572991 mm")))
sketch2.addConstraint(Sketcher.Constraint("DistanceX", 28, 1, -1, 1, Q("11.399771 mm")))
sketch2.addConstraint(Sketcher.Constraint("DistanceY", -1, 1, 34, 1, Q("15.18666 mm")))
sketch2.addConstraint(Sketcher.Constraint("DistanceX", 36, 1, -1, 1, Q("15.099939 mm")))
sketch2.addConstraint(Sketcher.Constraint("DistanceY", -1, 1, 36, 1, Q("11.532209 mm")))
sketch2.addConstraint(Sketcher.Constraint("DistanceX", -1, 1, 50, 1, Q("13.632712 mm")))
sketch2.addConstraint(Sketcher.Constraint("DistanceX", -1, 1, 53, 1, Q("8.440059 mm")))
sketch2.addConstraint(Sketcher.Constraint("DistanceX", -1, 1, 54, 1, Q("3.80325 mm")))
sketch2.addConstraint(Sketcher.Constraint("DistanceY", -1, 1, 59, 1, Q("11.647028 mm")))
sketch2.addConstraint(Sketcher.Constraint("DistanceY", -1, 1, 60, 1, Q("15.273292 mm")))
sketch2.addConstraint(Sketcher.Constraint("DistanceX", 1, 3, -1, 1, Q("13.276057 mm")))
sketch2.addConstraint(Sketcher.Constraint("DistanceX", 7, 3, -1, 1, Q("12.620066 mm")))
sketch2.addConstraint(Sketcher.Constraint("DistanceX", -1, 1, 13, 3, Q("6.459233 mm")))
sketch2.addConstraint(Sketcher.Constraint("DistanceX", -1, 1, 16, 3, Q("13.668106 mm")))
sketch2.addConstraint(Sketcher.Constraint("DistanceY", 16, 3, -1, 1, Q("13.197836 mm")))
sketch2.addConstraint(Sketcher.Constraint("DistanceX", -1, 1, 22, 3, Q("12.704435 mm")))
sketch2.addConstraint(Sketcher.Constraint("DistanceX", -1, 1, 53, 3, Q("6.229074 mm")))
sketch2.addConstraint(Sketcher.Constraint("DistanceY", -1, 1, 53, 3, Q("12.537888 mm")))
sketch2.addConstraint(Sketcher.Constraint("DistanceX", -1, 1, 59, 3, Q("13.280933 mm")))
sketch2.addConstraint(Sketcher.Constraint("DistanceY", -1, 1, 59, 3, Q("13.587377 mm")))
sketch2.addConstraint(Sketcher.Constraint("DistanceX", 1, 1, -1, 1, Q("15.007373 mm")))
sketch2.addConstraint(Sketcher.Constraint("DistanceX", 3, 1, -1, 1, Q("11.296136 mm")))
sketch2.addConstraint(Sketcher.Constraint("DistanceX", 4, 1, -1, 1, Q("7.687858 mm")))
sketch2.addConstraint(Sketcher.Constraint("DistanceX", 10, 1, -1, 1, Q("2.593907 mm")))
sketch2.addConstraint(Sketcher.Constraint("DistanceX", -1, 1, 13, 1, Q("4.051076 mm")))
sketch2.addConstraint(Sketcher.Constraint("DistanceX", -1, 1, 14, 1, Q("8.644613 mm")))
sketch2.addConstraint(Sketcher.Constraint("DistanceX", -1, 1, 16, 1, Q("11.738346 mm")))
sketch2.addConstraint(Sketcher.Constraint("DistanceX", -1, 1, 22, 1, Q("11.397706 mm")))
sketch2.addConstraint(Sketcher.Constraint("DistanceX", 25, 1, -1, 1, Q("18.822105 mm")))
sketch2.addConstraint(Sketcher.Constraint("DistanceX", 30, 1, -1, 1, Q("13.573862 mm")))
sketch2.addConstraint(Sketcher.Constraint("DistanceX", 37, 1, -1, 1, Q("4.076293 mm")))
sketch2.addConstraint(Sketcher.Constraint("DistanceX", 39, 1, -1, 1, Q("8.665326 mm")))
sketch2.addConstraint(Sketcher.Constraint("DistanceX", -1, 1, 51, 1, Q("11.542583 mm")))
pad2 = body.newObject("PartDesign::Pad", "Pad001")
pad2.Profile = sketch2
pad2.Length = 3

doc.recompute()
